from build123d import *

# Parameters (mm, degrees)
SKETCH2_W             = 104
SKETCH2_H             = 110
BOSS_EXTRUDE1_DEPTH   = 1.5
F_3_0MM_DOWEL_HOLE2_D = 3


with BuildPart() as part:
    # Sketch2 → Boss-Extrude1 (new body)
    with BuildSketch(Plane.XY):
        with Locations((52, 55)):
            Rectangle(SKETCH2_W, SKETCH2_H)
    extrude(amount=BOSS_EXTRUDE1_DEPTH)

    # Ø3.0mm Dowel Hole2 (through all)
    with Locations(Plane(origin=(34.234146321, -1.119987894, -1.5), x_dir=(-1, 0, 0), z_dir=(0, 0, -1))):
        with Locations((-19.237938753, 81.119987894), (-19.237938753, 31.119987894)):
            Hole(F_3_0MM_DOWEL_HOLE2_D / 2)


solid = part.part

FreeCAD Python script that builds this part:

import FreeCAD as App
import Part
import Sketcher

doc = App.newDocument("Part")
body = doc.addObject("PartDesign::Body", "Body")

# Sketch on XY plane
sketch1 = body.newObject("Sketcher::SketchObject", "Sketch")
sketch1.AttachmentSupport = (doc.getObject("XY_Plane"), [""])
sketch1.MapMode = "FlatFace"
sketch1.addGeometry(Part.LineSegment(App.Vector(0, 110, 0), App.Vector(0, 0, 0)), False)
sketch1.addGeometry(Part.LineSegment(App.Vector(0, 0, 0), App.Vector(104, 0, 0)), False)
sketch1.addGeometry(Part.LineSegment(App.Vector(104, 0, 0), App.Vector(104, 110, 0)), False)
sketch1.addGeometry(Part.LineSegment(App.Vector(104, 110, 0), App.Vector(0, 110, 0)), False)
sketch1.addConstraint(Sketcher.Constraint("Coincident", 0, 2, 1, 1))
sketch1.addConstraint(Sketcher.Constraint("Coincident", 1, 2, 2, 1))
sketch1.addConstraint(Sketcher.Constraint("Coincident", 2, 2, 3, 1))
sketch1.addConstraint(Sketcher.Constraint("Coincident", 3, 2, 0, 1))
sketch1.addConstraint(Sketcher.Constraint("Vertical", 0))
sketch1.addConstraint(Sketcher.Constraint("Horizontal", 1))
sketch1.addConstraint(Sketcher.Constraint("Vertical", 2))
sketch1.addConstraint(Sketcher.Constraint("Horizontal", 3))
sketch1.addConstraint(Sketcher.Constraint("Coincident", 0, 2, -1, 1))
sketch1.addConstraint(Sketcher.Constraint("DistanceX", 1, 1, 1, 2, 104.0))
sketch1.addConstraint(Sketcher.Constraint("DistanceY", 0, 2, 0, 1, 110.0))
pad1 = body.newObject("PartDesign::Pad", "Pad")
pad1.Profile = sketch1
pad1.Length = 1.5

# Sketch on XY plane
sketch2 = body.newObject("Sketcher::SketchObject", "Sketch001")
sketch2.AttachmentSupport = (doc.getObject("XY_Plane"), [""])
sketch2.MapMode = "FlatFace"
sketch2.AttachmentOffset = App.Placement(App.Vector(0, 0, -1.5), App.Rotation())
sketch2.addGeometry(Part.Circle(App.Vector(53.5, 80, 0), App.Vector(0, 0, 1), 1.5), False)
sketch2.addGeometry(Part.Circle(App.Vector(53.5, 30, 0), App.Vector(0, 0, 1), 1.5), False)
sketch2.addConstraint(Sketcher.Constraint("Equal", 0, 1))
sketch2.addConstraint(Sketcher.Constraint("Vertical", 0, 3, 1, 3))
sketch2.addConstraint(Sketcher.Constraint("Diameter", 0, 3.0))
sketch2.addConstraint(Sketcher.Constraint("DistanceY", -1, 1, 0, 3, 80.0))
sketch2.addConstraint(Sketcher.Constraint("DistanceY", -1, 1, 1, 3, 30.0))
sketch2.addConstraint(Sketcher.Constraint("DistanceX", -1, 1, 0, 3, 53.472085))
doc.recompute()
hole = body.newObject("PartDesign::Hole", "Hole")
hole.Profile = sketch2
hole.ThreadType = "None"
hole.Diameter = 3
hole.DepthType = "ThroughAll"
hole.Reversed = True

doc.recompute()
